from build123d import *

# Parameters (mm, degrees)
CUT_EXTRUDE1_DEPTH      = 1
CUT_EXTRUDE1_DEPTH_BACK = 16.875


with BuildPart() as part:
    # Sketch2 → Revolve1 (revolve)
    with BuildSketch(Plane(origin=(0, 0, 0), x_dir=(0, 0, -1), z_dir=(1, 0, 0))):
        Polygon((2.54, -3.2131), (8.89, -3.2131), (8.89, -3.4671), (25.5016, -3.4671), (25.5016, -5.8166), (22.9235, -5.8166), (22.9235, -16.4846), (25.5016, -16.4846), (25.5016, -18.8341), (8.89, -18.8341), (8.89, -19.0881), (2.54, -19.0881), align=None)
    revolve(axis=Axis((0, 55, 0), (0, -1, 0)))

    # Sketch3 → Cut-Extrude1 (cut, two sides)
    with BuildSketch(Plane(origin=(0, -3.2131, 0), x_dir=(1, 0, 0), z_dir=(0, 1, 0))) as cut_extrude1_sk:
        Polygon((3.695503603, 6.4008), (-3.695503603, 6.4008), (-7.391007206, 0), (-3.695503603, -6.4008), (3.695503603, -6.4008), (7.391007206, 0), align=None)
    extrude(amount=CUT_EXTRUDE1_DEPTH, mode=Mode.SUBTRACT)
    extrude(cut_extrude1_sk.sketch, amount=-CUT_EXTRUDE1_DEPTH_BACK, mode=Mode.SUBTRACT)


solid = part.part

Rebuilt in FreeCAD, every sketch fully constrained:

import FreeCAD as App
import Part
import Sketcher
from FreeCAD import Vector
Q = App.Units.Quantity


def add_polygon(sketch, points):
    """Adds a closed chain of lines whose ends are joined by coincident constraints."""
    first, n = sketch.GeometryCount, len(points)
    for a, b in zip(points, points[1:] + points[:1]):
        sketch.addGeometry(Part.LineSegment(App.Vector(*a, 0), App.Vector(*b, 0)), False)
    for i in range(n):
        sketch.addConstraint(Sketcher.Constraint("Coincident", first + i, 2, first + (i + 1) % n, 1))

doc = App.newDocument("Part")
body = doc.addObject("PartDesign::Body", "Body")

# Sketch on YZ plane
sketch1 = body.newObject("Sketcher::SketchObject", "Sketch")
sketch1.AttachmentSupport = (doc.getObject("YZ_Plane"), [""])
sketch1.MapMode = "FlatFace"
add_polygon(sketch1, [(-3.21, -8.89), (-3.21, -2.54), (-19.09, -2.54), (-19.09, -8.89), (-18.83, -8.89), (-18.83, -25.5), (-16.48, -25.5), (-16.48, -22.92), (-5.82, -22.92), (-5.82, -25.5), (-3.47, -25.5), (-3.47, -8.89)])  # lines 0-11
sketch1.addConstraint([
    Sketcher.Constraint("Vertical", 0),
    Sketcher.Constraint("Horizontal", 1),
    Sketcher.Constraint("Vertical", 2),
    Sketcher.Constraint("Horizontal", 3),
    Sketcher.Constraint("Vertical", 4),
    Sketcher.Constraint("Horizontal", 5),
    Sketcher.Constraint("Vertical", 6),
    Sketcher.Constraint("Horizontal", 7),
    Sketcher.Constraint("Vertical", 8),
    Sketcher.Constraint("Horizontal", 9),
    Sketcher.Constraint("Vertical", 10),
    Sketcher.Constraint("Horizontal", 11),
    Sketcher.Constraint("Horizontal", 5, 2, 8, 2),
    Sketcher.Constraint("Horizontal", 3, 2, 10, 2),
    Sketcher.Constraint("Equal", 5, 9),
    Sketcher.Constraint("Equal", 3, 11),
    Sketcher.Constraint("DistanceX", 3, 1, 3, 2, Q("0.01 in")),
    Sketcher.Constraint("DistanceX", 7, 1, 7, 2, Q("0.42 in")),
    Sketcher.Constraint("DistanceY", 0, 1, 0, 2, Q("0.25 in")),
    Sketcher.Constraint("DistanceY", 0, 2, -1, 1, Q("0.1 in")),
    Sketcher.Constraint("DistanceX", 1, 2, 1, 1, Q("0.625 in")),
    Sketcher.Constraint("DistanceY", 4, 2, 4, 1, Q("0.654 in")),
    Sketcher.Constraint("DistanceY", 6, 1, 6, 2, Q("0.1015 in")),
    Sketcher.Constraint("DistanceX", 5, 2, -1, 1, Q("0.649 in")),
])
revolution = body.newObject("PartDesign::Revolution", "Revolution")
revolution.Profile = sketch1
revolution.ReferenceAxis = (sketch1, ["H_Axis"])
revolution.Angle = 360

# Sketch on XZ plane
sketch2 = body.newObject("Sketcher::SketchObject", "Sketch001")
sketch2.AttachmentSupport = (doc.getObject("XZ_Plane"), [""])
sketch2.MapMode = "FlatFace"
sketch2.AttachmentOffset = App.Placement(Vector(0, 0, 0.1265 * 25.4), App.Rotation())
add_polygon(sketch2, [(4, -6), (-4, -6), (-7, 0), (-4, 6), (4, 6), (7, 0)])  # lines 0-5
sketch2.addConstraint([
    Sketcher.Constraint("Horizontal", 0),
    Sketcher.Constraint("Horizontal", 3),
    Sketcher.Constraint("Symmetric", 0, 2, 3, 2, -1, 1),
    Sketcher.Constraint("Symmetric", 1, 2, 4, 2, -1, 1),
    Sketcher.Constraint("PointOnObject", 1, 2, -1),
    Sketcher.Constraint("Parallel", 2, 5),
    Sketcher.Constraint("Vertical", 0, 2, 2, 2),
    Sketcher.Constraint("Angle", 1, Q("120 deg")),
    Sketcher.Constraint("DistanceY", 0, 2, -1, 1, Q("0.252 in")),
    Sketcher.Constraint("DistanceX", 0, 2, 0, 1, 7.391007),
])
pocket1 = body.newObject("PartDesign::Pocket", "Pocket")
pocket1.Profile = sketch2
pocket1.Type = "ThroughAll"
pocket1.Midplane = True

doc.recompute()
